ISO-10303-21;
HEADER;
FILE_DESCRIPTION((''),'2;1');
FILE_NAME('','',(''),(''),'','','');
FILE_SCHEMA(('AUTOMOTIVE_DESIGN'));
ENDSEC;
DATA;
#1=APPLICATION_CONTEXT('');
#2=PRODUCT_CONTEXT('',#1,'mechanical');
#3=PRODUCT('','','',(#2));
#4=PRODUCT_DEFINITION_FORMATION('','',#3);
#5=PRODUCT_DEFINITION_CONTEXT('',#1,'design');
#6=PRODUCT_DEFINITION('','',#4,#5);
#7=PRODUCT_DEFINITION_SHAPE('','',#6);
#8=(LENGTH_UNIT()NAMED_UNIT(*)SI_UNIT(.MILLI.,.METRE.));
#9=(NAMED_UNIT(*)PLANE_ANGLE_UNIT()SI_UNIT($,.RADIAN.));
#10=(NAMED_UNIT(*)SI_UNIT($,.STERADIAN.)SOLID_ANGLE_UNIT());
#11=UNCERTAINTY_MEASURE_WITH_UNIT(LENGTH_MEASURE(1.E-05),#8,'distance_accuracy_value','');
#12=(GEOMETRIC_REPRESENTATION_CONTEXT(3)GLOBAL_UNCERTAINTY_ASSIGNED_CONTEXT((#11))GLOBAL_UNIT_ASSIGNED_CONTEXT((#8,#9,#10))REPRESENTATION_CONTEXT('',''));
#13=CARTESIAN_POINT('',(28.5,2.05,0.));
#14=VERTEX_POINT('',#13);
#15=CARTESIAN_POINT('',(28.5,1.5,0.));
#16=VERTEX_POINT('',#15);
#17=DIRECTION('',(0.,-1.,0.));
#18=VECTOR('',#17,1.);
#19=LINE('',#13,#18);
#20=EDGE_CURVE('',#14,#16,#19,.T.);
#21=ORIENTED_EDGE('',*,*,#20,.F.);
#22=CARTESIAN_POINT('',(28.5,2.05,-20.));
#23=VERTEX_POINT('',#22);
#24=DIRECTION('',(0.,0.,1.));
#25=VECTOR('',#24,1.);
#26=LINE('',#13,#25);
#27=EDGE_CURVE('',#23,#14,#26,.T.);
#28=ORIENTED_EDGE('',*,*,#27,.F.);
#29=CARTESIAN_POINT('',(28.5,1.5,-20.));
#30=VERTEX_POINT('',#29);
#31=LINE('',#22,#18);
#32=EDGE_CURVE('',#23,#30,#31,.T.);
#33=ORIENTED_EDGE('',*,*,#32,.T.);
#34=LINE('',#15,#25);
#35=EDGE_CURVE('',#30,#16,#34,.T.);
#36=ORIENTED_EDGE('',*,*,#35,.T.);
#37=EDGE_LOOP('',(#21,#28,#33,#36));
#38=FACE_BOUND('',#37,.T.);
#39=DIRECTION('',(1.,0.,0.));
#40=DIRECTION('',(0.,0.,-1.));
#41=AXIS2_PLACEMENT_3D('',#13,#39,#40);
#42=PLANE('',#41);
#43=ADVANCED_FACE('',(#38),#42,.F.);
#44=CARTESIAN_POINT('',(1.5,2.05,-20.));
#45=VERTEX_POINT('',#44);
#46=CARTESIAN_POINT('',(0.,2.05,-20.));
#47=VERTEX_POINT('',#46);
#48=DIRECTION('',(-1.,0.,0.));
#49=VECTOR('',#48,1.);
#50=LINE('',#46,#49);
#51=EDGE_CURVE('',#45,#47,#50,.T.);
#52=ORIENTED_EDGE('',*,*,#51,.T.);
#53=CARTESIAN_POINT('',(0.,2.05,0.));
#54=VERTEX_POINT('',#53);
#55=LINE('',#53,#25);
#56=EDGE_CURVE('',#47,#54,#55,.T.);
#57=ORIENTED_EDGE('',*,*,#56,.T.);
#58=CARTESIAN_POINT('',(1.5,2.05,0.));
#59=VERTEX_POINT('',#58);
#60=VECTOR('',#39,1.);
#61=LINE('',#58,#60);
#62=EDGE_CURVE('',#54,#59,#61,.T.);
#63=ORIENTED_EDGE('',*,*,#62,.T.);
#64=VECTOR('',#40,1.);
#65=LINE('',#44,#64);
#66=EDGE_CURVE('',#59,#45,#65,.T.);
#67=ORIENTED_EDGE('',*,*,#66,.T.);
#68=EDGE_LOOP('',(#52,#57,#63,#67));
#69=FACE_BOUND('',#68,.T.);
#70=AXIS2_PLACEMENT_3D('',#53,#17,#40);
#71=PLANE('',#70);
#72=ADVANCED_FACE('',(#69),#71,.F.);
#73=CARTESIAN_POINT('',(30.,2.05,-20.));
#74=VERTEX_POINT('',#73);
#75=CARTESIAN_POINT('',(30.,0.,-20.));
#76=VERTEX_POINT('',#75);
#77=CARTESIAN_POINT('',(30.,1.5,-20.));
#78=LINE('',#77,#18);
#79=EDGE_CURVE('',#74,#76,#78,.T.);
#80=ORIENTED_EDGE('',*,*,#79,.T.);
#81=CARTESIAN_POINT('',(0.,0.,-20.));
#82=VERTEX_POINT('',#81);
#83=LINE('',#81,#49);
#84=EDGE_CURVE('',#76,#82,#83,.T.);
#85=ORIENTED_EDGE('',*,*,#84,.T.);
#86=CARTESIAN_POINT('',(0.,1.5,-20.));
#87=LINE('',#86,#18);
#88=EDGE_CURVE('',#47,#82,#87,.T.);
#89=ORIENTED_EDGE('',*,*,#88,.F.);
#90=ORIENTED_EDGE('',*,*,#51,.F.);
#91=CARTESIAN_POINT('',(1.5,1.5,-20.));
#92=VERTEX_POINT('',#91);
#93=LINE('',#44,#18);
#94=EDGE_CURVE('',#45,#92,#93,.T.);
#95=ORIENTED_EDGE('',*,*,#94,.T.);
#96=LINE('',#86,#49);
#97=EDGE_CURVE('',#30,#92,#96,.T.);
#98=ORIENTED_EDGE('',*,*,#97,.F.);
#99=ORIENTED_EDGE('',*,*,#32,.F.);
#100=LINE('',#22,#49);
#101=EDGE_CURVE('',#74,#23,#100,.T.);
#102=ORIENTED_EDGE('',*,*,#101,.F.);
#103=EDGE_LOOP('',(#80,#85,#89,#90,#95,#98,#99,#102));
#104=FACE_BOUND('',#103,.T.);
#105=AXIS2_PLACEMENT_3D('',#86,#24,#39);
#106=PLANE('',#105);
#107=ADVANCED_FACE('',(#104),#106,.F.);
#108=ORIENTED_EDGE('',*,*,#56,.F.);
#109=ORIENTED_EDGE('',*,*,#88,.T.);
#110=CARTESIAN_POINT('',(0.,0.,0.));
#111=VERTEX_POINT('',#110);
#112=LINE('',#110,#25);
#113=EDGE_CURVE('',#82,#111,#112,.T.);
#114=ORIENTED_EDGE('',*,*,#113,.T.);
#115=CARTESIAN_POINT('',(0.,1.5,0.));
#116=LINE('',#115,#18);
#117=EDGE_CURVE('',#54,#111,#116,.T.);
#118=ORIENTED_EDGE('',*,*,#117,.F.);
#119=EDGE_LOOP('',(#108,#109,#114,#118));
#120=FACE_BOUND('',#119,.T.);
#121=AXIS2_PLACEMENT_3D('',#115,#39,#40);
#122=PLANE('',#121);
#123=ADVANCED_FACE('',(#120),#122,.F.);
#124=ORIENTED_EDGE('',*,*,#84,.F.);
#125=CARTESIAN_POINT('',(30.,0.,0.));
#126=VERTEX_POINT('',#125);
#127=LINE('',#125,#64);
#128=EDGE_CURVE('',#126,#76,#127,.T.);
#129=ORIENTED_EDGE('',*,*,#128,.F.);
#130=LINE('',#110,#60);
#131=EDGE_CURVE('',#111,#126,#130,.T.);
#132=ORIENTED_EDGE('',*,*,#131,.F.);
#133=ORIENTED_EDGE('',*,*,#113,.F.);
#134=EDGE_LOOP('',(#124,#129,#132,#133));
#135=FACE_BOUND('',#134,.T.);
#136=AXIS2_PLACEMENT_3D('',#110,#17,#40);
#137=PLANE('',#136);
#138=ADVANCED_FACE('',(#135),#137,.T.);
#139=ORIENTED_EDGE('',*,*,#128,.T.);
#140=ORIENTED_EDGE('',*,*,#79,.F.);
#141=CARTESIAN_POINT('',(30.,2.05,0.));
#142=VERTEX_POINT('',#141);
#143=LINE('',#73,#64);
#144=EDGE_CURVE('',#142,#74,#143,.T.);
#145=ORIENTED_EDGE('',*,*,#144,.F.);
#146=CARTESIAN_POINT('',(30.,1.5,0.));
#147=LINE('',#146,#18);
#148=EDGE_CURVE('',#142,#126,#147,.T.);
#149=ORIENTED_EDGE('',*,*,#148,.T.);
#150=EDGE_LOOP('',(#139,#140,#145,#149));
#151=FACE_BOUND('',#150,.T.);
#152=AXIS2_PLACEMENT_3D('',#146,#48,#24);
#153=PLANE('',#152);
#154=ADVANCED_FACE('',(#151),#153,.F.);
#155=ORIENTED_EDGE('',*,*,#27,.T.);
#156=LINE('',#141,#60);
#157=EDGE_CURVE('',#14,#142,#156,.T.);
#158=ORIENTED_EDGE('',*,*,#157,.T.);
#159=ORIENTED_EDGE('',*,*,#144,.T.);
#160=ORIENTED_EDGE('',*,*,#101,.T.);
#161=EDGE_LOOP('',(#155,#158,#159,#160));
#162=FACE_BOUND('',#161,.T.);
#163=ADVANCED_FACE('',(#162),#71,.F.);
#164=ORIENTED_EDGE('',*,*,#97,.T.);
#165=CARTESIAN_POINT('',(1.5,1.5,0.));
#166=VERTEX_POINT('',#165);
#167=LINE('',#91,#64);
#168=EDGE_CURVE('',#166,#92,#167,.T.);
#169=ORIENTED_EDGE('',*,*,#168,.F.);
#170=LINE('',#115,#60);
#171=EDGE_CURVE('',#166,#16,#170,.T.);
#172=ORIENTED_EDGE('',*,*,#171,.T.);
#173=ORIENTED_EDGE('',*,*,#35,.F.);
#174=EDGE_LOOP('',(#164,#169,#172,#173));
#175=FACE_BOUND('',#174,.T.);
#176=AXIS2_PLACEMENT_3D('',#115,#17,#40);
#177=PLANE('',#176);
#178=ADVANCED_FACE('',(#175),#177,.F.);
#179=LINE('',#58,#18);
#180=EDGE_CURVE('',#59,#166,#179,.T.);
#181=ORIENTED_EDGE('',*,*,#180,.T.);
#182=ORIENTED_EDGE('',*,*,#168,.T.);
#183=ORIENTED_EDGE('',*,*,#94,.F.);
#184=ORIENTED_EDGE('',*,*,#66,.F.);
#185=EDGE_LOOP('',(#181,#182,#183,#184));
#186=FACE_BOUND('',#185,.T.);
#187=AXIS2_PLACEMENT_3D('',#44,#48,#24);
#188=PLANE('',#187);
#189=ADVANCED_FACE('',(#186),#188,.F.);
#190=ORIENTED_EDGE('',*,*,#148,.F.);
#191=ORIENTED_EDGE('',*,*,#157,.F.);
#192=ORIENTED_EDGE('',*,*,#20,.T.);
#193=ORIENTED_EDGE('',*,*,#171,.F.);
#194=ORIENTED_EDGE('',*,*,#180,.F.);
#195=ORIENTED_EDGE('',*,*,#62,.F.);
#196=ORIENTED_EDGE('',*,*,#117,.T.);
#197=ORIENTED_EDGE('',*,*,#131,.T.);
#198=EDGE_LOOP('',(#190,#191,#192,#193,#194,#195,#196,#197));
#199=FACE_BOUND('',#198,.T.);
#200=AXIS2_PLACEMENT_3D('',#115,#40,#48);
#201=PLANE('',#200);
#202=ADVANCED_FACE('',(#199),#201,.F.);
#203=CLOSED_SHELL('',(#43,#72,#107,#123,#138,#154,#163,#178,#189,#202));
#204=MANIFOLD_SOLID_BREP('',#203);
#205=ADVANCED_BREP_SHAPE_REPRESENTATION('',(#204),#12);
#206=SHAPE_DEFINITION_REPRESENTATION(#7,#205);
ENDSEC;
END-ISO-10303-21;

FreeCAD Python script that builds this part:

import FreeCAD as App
import Part
import Sketcher
from FreeCAD import Vector

doc = App.newDocument("Part")
body = doc.addObject("PartDesign::Body", "Body")

# Sketch on XZ plane
sketch1 = doc.addObject("Sketcher::SketchObject", "Sketch")
body.addObject(sketch1)
sketch1.AttachmentSupport = (doc.XZ_Plane, [""])
sketch1.MapMode = "FlatFace"
sketch1.addGeometry([
    Part.LineSegment(Vector(0, -20, 0), Vector(0, 0, 0)),
    Part.LineSegment(Vector(0, 0, 0), Vector(30, 0, 0)),
    Part.LineSegment(Vector(30, 0, 0), Vector(30, -20, 0)),
    Part.LineSegment(Vector(30, -20, 0), Vector(0, -20, 0)),
], False)
sketch1.addConstraint([
    Sketcher.Constraint("Coincident", 0, 2, 1, 1),
    Sketcher.Constraint("Coincident", 1, 2, 2, 1),
    Sketcher.Constraint("Coincident", 2, 2, 3, 1),
    Sketcher.Constraint("Coincident", 3, 2, 0, 1),
    Sketcher.Constraint("Vertical", 0),
    Sketcher.Constraint("Horizontal", 1),
    Sketcher.Constraint("Vertical", 2),
    Sketcher.Constraint("Horizontal", 3),
    Sketcher.Constraint("Coincident", 0, 2, -1, 1),
    Sketcher.Constraint("DistanceX", 1, 1, 1, 2, 30.0),
    Sketcher.Constraint("DistanceY", 0, 1, 0, 2, 20.0),
])
pad1 = doc.addObject("PartDesign::Pad", "Pad")
body.addObject(pad1)
pad1.Profile = sketch1
pad1.Length = 1.5
pad1.Reversed = True

# Sketch on XZ plane
sketch2 = doc.addObject("Sketcher::SketchObject", "Sketch001")
body.addObject(sketch2)
sketch2.AttachmentSupport = (doc.XZ_Plane, [""])
sketch2.MapMode = "FlatFace"
sketch2.AttachmentOffset = App.Placement(Vector(0, 0, -1.5), App.Rotation())
sketch2.addGeometry([
    Part.LineSegment(Vector(0, -20, 0), Vector(0, 0, 0)),  # 0
    Part.LineSegment(Vector(0, 0, 0), Vector(1.5, 0, 0)),  # 1
    Part.LineSegment(Vector(1.5, 0, 0), Vector(1.5, -20, 0)),  # 2
    Part.LineSegment(Vector(1.5, -20, 0), Vector(0, -20, 0)),  # 3
    Part.LineSegment(Vector(28.5, -20, 0), Vector(28.5, 0, 0)),  # 4
    Part.LineSegment(Vector(28.5, 0, 0), Vector(30, 0, 0)),  # 5
    Part.LineSegment(Vector(30, 0, 0), Vector(30, -20, 0)),  # 6
    Part.LineSegment(Vector(30, -20, 0), Vector(28.5, -20, 0)),  # 7
], False)
sketch2.addConstraint([
    Sketcher.Constraint("Coincident", 0, 2, 1, 1),
    Sketcher.Constraint("Coincident", 1, 2, 2, 1),
    Sketcher.Constraint("Coincident", 2, 2, 3, 1),
    Sketcher.Constraint("Coincident", 3, 2, 0, 1),
    Sketcher.Constraint("Coincident", 4, 2, 5, 1),
    Sketcher.Constraint("Coincident", 5, 2, 6, 1),
    Sketcher.Constraint("Coincident", 6, 2, 7, 1),
    Sketcher.Constraint("Coincident", 7, 2, 4, 1),
    Sketcher.Constraint("Vertical", 0),
    Sketcher.Constraint("Horizontal", 1),
    Sketcher.Constraint("Vertical", 2),
    Sketcher.Constraint("Horizontal", 3),
    Sketcher.Constraint("Vertical", 4),
    Sketcher.Constraint("Horizontal", 5),
    Sketcher.Constraint("Vertical", 6),
    Sketcher.Constraint("Horizontal", 7),
    Sketcher.Constraint("Coincident", 0, 2, -1, 1),
    Sketcher.Constraint("PointOnObject", 4, 2, -1),
    Sketcher.Constraint("Horizontal", 3, 2, 6, 2),
    Sketcher.Constraint("Equal", 3, 5),
    Sketcher.Constraint("DistanceY", 0, 1, 0, 2, 20.0),
    Sketcher.Constraint("DistanceX", 1, 1, 1, 2, 1.5),
    Sketcher.Constraint("DistanceX", -1, 1, 5, 2, 30.0),
])
pad2 = doc.addObject("PartDesign::Pad", "Pad001")
body.addObject(pad2)
pad2.Profile = sketch2
pad2.Length = 0.55
pad2.Reversed = True

doc.recompute()
